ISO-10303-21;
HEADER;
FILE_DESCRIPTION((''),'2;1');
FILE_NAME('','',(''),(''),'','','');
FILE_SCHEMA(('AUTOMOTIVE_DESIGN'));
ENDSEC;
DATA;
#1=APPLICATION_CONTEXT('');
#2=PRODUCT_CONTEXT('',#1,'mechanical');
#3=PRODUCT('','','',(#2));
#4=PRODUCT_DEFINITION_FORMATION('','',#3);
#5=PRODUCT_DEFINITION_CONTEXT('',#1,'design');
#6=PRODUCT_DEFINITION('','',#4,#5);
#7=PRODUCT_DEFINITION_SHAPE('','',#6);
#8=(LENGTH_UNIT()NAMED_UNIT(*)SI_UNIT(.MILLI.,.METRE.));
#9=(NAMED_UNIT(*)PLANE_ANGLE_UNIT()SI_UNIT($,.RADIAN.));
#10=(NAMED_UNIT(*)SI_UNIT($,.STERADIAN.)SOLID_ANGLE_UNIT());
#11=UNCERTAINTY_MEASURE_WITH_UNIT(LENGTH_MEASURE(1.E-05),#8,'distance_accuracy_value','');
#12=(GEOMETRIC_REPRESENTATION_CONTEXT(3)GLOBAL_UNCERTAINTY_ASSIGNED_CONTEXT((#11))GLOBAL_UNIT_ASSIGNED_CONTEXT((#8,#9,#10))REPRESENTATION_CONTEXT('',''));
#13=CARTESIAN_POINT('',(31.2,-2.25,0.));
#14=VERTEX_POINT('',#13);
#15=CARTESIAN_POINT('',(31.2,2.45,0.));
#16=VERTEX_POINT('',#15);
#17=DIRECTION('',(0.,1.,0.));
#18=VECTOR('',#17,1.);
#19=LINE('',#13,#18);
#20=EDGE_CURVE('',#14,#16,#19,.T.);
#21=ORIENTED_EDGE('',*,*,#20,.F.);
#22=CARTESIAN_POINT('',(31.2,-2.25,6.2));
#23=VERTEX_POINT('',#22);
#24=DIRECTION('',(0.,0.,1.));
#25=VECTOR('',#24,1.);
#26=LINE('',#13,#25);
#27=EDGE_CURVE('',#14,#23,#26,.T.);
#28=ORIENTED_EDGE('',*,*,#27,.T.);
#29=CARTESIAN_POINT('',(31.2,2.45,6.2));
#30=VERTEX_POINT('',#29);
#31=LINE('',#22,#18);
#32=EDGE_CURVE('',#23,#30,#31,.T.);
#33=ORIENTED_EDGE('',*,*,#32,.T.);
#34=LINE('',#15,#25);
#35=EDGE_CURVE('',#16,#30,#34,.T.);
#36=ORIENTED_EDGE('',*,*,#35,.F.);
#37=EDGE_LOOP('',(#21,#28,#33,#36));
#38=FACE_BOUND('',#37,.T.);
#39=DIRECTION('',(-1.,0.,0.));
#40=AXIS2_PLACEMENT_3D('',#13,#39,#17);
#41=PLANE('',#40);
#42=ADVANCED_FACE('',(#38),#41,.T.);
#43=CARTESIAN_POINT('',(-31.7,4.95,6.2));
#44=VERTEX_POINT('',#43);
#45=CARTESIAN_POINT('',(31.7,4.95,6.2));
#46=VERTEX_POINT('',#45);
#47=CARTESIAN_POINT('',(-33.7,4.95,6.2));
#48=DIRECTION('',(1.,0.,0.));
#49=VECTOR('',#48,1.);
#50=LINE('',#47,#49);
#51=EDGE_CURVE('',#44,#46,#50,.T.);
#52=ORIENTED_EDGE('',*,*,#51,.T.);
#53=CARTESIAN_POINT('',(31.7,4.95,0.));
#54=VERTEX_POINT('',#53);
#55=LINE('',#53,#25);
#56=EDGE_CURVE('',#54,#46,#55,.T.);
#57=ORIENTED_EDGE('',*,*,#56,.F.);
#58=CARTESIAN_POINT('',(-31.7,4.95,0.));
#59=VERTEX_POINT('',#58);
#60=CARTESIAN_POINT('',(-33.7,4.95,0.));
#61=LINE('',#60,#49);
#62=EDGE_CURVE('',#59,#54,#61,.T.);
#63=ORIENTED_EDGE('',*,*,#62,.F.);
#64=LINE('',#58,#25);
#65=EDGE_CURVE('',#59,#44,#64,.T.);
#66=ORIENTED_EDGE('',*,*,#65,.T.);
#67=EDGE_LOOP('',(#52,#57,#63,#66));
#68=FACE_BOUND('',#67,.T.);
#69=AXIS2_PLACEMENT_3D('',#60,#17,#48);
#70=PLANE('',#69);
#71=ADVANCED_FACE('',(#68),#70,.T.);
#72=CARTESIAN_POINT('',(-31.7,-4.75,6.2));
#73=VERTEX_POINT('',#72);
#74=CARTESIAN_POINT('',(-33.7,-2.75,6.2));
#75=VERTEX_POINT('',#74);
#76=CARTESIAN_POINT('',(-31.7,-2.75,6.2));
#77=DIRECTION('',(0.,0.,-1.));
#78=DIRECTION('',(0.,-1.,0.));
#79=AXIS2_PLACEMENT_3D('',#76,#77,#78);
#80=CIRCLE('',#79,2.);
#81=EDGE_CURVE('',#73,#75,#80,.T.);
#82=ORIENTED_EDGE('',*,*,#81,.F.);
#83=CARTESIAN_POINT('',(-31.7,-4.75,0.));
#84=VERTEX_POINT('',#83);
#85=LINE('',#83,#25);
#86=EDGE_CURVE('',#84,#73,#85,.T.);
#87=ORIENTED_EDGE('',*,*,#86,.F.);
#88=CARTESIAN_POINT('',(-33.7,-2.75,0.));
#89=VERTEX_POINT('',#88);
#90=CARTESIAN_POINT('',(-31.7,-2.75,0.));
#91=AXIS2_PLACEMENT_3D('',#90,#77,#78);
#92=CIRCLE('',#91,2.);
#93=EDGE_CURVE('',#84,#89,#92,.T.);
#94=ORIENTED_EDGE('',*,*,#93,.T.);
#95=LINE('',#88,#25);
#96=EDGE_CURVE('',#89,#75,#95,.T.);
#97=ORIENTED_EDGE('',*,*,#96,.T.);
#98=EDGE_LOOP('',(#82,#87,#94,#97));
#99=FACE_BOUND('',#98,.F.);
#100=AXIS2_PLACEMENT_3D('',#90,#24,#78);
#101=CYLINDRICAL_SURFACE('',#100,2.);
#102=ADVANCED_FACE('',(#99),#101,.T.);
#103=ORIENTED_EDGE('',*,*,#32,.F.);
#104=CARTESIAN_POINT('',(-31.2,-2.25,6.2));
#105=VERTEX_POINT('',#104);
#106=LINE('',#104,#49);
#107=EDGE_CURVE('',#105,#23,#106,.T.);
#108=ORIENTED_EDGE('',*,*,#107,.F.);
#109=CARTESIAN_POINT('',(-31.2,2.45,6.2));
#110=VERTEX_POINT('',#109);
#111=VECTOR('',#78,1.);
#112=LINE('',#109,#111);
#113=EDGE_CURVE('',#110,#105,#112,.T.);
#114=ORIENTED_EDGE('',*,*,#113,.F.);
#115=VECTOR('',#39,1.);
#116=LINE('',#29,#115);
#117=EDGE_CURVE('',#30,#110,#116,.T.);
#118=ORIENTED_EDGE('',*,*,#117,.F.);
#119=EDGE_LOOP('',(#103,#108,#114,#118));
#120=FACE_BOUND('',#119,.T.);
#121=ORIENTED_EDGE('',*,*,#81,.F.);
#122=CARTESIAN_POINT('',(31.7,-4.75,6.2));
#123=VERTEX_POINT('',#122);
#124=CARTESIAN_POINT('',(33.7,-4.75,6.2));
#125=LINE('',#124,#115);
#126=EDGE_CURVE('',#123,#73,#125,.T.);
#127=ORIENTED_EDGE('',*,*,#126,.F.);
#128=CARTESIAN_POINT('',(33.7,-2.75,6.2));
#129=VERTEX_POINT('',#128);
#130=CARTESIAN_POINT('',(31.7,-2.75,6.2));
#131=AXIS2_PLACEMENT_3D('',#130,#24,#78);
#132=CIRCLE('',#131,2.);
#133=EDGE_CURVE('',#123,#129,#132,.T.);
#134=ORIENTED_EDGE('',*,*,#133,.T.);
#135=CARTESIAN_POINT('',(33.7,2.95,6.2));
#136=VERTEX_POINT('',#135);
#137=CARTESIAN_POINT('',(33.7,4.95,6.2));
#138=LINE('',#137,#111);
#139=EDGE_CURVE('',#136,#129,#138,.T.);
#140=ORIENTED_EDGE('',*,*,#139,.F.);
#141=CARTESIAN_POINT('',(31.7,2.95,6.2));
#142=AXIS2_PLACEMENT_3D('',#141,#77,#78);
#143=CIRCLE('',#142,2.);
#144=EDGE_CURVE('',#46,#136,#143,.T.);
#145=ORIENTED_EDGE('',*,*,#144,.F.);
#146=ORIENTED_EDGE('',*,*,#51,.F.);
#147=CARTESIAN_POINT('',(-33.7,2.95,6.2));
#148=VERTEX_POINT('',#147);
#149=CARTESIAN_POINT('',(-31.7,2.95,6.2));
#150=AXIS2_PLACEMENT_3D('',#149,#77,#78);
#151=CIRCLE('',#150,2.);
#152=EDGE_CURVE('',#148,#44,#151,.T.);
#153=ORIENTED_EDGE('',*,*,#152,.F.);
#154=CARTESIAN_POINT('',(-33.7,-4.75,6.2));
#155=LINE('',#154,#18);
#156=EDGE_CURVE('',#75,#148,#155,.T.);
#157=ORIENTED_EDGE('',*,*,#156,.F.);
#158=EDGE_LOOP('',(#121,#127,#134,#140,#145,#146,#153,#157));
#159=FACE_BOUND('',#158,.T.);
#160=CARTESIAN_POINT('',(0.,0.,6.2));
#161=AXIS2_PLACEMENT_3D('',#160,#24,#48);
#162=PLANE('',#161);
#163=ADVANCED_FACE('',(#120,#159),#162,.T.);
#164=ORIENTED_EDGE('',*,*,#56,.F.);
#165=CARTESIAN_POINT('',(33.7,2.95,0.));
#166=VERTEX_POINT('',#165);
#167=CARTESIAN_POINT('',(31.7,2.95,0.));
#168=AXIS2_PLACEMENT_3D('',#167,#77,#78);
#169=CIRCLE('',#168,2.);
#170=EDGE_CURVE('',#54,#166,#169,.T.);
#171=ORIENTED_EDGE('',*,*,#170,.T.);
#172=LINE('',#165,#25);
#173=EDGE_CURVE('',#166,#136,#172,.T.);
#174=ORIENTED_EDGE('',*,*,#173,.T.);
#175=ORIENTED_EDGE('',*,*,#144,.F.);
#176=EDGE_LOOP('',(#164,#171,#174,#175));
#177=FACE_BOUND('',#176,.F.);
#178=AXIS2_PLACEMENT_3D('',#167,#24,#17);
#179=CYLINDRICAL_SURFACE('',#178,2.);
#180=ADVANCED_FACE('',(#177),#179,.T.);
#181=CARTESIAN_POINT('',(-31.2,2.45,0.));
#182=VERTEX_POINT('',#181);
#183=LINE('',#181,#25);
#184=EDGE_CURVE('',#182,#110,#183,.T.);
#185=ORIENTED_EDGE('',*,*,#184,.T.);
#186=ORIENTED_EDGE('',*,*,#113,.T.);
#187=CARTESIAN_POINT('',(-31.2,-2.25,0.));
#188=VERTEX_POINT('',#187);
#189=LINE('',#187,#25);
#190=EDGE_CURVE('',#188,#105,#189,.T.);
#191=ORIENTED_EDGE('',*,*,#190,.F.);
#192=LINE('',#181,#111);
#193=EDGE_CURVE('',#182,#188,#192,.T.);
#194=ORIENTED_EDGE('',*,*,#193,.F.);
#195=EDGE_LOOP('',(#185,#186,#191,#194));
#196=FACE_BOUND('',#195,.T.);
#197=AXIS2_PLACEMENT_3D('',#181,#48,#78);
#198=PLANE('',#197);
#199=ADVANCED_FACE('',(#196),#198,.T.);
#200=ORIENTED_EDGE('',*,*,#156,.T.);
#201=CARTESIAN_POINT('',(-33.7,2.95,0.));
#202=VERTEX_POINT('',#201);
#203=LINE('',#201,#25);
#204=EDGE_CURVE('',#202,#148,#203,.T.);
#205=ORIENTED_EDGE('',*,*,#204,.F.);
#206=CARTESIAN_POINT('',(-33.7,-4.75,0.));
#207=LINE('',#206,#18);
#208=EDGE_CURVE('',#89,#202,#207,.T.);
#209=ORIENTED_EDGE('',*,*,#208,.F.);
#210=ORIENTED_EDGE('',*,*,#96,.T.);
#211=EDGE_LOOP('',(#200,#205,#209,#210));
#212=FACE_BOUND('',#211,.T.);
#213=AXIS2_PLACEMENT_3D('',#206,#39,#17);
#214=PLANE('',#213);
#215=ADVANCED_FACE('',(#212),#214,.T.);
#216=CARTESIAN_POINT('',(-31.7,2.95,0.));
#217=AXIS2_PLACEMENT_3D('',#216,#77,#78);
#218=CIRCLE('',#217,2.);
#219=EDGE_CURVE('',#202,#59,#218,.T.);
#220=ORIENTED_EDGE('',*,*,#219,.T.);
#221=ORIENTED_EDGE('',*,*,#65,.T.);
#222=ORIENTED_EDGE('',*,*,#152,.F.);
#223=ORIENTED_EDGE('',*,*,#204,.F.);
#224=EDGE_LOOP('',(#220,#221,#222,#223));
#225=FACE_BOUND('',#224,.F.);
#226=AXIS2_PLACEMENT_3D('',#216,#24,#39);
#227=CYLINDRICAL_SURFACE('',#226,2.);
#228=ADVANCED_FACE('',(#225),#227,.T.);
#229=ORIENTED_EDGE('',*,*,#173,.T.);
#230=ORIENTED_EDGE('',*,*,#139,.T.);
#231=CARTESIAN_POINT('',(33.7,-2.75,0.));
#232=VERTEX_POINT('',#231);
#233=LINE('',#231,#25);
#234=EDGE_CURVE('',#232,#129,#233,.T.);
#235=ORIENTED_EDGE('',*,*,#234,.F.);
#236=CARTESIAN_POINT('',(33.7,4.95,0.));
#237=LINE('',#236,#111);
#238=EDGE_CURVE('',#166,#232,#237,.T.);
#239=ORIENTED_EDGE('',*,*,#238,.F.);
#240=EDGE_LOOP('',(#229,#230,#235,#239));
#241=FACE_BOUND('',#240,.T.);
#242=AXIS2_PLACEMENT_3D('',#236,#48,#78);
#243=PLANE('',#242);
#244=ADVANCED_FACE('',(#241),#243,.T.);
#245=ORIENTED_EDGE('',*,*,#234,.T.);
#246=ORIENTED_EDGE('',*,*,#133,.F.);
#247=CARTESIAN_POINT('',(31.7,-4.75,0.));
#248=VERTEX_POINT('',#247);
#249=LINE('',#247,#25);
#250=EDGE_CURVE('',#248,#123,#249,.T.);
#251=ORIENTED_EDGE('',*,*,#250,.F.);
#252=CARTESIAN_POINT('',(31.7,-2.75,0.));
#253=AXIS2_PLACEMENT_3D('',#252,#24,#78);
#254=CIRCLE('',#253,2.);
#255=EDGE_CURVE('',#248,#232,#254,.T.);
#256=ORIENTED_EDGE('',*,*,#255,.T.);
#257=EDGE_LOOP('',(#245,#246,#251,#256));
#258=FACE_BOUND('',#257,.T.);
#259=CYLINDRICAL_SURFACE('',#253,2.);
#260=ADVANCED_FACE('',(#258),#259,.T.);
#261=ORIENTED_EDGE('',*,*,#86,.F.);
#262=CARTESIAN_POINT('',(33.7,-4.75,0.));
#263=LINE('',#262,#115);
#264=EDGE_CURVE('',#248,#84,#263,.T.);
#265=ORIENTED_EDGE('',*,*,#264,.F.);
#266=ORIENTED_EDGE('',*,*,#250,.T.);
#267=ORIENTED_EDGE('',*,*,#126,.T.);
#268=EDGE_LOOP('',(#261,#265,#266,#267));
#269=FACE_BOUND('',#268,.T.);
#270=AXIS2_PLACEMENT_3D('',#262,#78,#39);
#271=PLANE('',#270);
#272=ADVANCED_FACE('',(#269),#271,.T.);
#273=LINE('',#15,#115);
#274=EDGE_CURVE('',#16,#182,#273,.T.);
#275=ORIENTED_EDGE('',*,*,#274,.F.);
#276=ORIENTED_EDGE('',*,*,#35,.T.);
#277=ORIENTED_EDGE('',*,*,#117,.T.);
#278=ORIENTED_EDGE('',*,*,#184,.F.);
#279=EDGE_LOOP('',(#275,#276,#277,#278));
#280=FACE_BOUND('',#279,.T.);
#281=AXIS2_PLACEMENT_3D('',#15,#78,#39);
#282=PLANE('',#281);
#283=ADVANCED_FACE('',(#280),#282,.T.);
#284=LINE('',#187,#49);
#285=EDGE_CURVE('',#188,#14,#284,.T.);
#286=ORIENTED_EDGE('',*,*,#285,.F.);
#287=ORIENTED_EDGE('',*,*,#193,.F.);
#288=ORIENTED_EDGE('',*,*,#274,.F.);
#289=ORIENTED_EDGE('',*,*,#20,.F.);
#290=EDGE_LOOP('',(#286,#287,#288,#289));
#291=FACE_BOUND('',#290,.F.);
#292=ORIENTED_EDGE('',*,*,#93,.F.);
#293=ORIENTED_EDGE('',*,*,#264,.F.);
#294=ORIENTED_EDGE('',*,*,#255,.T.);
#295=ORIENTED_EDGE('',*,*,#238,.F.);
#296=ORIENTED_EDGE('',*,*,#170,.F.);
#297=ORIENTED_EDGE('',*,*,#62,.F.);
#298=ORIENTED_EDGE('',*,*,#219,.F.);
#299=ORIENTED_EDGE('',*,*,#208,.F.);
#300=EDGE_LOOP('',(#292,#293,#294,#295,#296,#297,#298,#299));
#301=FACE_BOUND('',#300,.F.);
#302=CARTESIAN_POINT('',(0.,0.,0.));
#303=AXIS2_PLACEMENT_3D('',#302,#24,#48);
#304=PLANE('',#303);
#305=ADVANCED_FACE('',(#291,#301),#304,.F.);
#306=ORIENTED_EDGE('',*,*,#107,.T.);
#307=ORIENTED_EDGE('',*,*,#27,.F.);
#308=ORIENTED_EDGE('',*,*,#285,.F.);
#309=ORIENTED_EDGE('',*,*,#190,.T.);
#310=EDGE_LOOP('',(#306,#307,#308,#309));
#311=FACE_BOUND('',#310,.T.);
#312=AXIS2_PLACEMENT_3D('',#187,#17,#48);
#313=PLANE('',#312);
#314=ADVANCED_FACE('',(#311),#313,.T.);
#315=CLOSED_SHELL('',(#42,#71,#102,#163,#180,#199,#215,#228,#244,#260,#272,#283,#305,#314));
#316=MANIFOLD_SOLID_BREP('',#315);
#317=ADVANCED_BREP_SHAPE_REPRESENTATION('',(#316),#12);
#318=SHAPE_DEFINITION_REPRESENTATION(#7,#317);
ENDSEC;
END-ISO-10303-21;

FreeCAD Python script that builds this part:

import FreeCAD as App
import Part
import Sketcher
from FreeCAD import Vector


def edges_at(feature, points):
    """Names of the edges that pass closest to the given points."""
    edges = feature.Shape.Edges
    near = lambda p: min(range(len(edges)), key=lambda i: edges[i].distToShape(Part.Vertex(*p))[0])
    return sorted({f"Edge{near(p) + 1}" for p in points})

doc = App.newDocument("Part")
body = doc.addObject("PartDesign::Body", "Body")

# Sketch on XY plane
sketch1 = body.newObject("Sketcher::SketchObject", "Sketch")
sketch1.AttachmentSupport = (doc.getObject("XY_Plane"), [""])
sketch1.MapMode = "FlatFace"
sketch1.addGeometry([
    Part.LineSegment(Vector(-33.7, -4.75, 0), Vector(33.7, -4.75, 0)),  # 0
    Part.LineSegment(Vector(33.7, -4.75, 0), Vector(33.7, 4.95, 0)),  # 1
    Part.LineSegment(Vector(33.7, 4.95, 0), Vector(-33.7, 4.95, 0)),  # 2
    Part.LineSegment(Vector(-33.7, 4.95, 0), Vector(-33.7, -4.75, 0)),  # 3
    Part.LineSegment(Vector(31.2, -2.25, 0), Vector(-31.2, -2.25, 0)),  # 4
    Part.LineSegment(Vector(-31.2, -2.25, 0), Vector(-31.2, 2.45, 0)),  # 5
    Part.LineSegment(Vector(-31.2, 2.45, 0), Vector(31.2, 2.45, 0)),  # 6
    Part.LineSegment(Vector(31.2, 2.45, 0), Vector(31.2, -2.25, 0)),  # 7
], False)
sketch1.addConstraint([
    Sketcher.Constraint("Coincident", 0, 2, 1, 1),
    Sketcher.Constraint("Coincident", 1, 2, 2, 1),
    Sketcher.Constraint("Coincident", 2, 2, 3, 1),
    Sketcher.Constraint("Coincident", 3, 2, 0, 1),
    Sketcher.Constraint("Coincident", 4, 2, 5, 1),
    Sketcher.Constraint("Coincident", 5, 2, 6, 1),
    Sketcher.Constraint("Coincident", 6, 2, 7, 1),
    Sketcher.Constraint("Coincident", 7, 2, 4, 1),
    Sketcher.Constraint("Horizontal", 0),
    Sketcher.Constraint("Vertical", 1),
    Sketcher.Constraint("Horizontal", 2),
    Sketcher.Constraint("Vertical", 3),
    Sketcher.Constraint("Horizontal", 4),
    Sketcher.Constraint("Vertical", 5),
    Sketcher.Constraint("Horizontal", 6),
    Sketcher.Constraint("Vertical", 7),
    Sketcher.Constraint("DistanceX", 3, 2, 4, 2, 2.5),
    Sketcher.Constraint("DistanceY", 3, 2, 4, 2, 2.5),
    Sketcher.Constraint("DistanceY", 5, 2, 2, 2, 2.5),
    Sketcher.Constraint("DistanceX", 6, 2, 1, 2, 2.5),
    Sketcher.Constraint("DistanceX", 0, 1, 0, 2, 67.4),
    Sketcher.Constraint("DistanceY", 1, 1, 1, 2, 9.7),
    Sketcher.Constraint("DistanceX", -1, 1, 0, 2, 33.7),
    Sketcher.Constraint("DistanceY", 0, 2, -1, 1, 4.75),
])
pad1 = body.newObject("PartDesign::Pad", "Pad")
pad1.Profile = sketch1
pad1.Length = 6.2
doc.recompute()

fillet = body.newObject("PartDesign::Fillet", "Fillet")
fillet.Base = (pad1, edges_at(pad1, [
    (33.7, -4.75, 3.1),
    (-33.7, -4.75, 3.1),
    (-33.7, 4.95, 3.1),
    (33.7, 4.95, 3.1),
]))
fillet.Radius = 2

doc.recompute()
